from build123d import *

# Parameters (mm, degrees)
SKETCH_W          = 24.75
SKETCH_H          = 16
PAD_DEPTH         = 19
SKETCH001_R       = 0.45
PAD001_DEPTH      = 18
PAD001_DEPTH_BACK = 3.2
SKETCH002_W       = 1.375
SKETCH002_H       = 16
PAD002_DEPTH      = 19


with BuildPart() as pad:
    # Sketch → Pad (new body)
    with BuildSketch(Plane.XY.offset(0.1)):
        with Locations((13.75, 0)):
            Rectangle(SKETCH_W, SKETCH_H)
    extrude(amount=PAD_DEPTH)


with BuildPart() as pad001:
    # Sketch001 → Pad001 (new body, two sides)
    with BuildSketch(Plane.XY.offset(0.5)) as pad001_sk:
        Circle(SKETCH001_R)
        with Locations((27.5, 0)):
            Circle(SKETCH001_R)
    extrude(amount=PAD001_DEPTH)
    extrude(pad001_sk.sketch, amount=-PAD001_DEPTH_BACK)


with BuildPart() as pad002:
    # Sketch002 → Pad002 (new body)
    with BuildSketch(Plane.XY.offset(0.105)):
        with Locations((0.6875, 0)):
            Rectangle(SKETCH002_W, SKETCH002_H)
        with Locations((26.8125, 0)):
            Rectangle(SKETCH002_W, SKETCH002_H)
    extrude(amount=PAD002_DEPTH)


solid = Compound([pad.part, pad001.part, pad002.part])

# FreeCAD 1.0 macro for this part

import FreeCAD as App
import Part
import Sketcher

V = App.Vector

doc = App.newDocument("Part")
body = doc.addObject("PartDesign::Body", "Body")

# Sketch on XY plane
sketch1 = body.newObject("Sketcher::SketchObject", "Sketch")
sketch1.AttachmentSupport = (doc.getObject("XY_Plane"), [""])
sketch1.MapMode = "FlatFace"
sketch1.AttachmentOffset = App.Placement(V(0, 0, 0.1), App.Rotation())
sketch1.addGeometry(Part.LineSegment(V(1, 8, 0), V(1, -8, 0)), False)
sketch1.addGeometry(Part.LineSegment(V(1, -8, 0), V(26, -8, 0)), False)
sketch1.addGeometry(Part.LineSegment(V(26, -8, 0), V(26, 8, 0)), False)
sketch1.addGeometry(Part.LineSegment(V(26, 8, 0), V(1, 8, 0)), False)
sketch1.addConstraint(Sketcher.Constraint("Coincident", 0, 2, 1, 1))
sketch1.addConstraint(Sketcher.Constraint("Coincident", 1, 2, 2, 1))
sketch1.addConstraint(Sketcher.Constraint("Coincident", 2, 2, 3, 1))
sketch1.addConstraint(Sketcher.Constraint("Coincident", 3, 2, 0, 1))
sketch1.addConstraint(Sketcher.Constraint("Vertical", 0))
sketch1.addConstraint(Sketcher.Constraint("Horizontal", 1))
sketch1.addConstraint(Sketcher.Constraint("Vertical", 2))
sketch1.addConstraint(Sketcher.Constraint("Horizontal", 3))
sketch1.addConstraint(Sketcher.Constraint("DistanceY", 0, 2, 0, 1, 16.0))
sketch1.addConstraint(Sketcher.Constraint("DistanceY", 0, 2, -1, 1, 8.0))
sketch1.addConstraint(Sketcher.Constraint("DistanceX", 1, 1, 1, 2, 24.75))
sketch1.addConstraint(Sketcher.Constraint("DistanceX", -1, 1, 0, 2, 1.375))
pad1 = body.newObject("PartDesign::Pad", "Pad")
pad1.Profile = sketch1
pad1.Length = 19
body2 = doc.addObject("PartDesign::Body", "Body001")
body2.AllowCompound = True

# Sketch on XY plane
sketch2 = body2.newObject("Sketcher::SketchObject", "Sketch001")
sketch2.AttachmentSupport = (doc.getObject("XY_Plane001"), [""])
sketch2.MapMode = "FlatFace"
sketch2.AttachmentOffset = App.Placement(V(0, 0, 0.5), App.Rotation())
sketch2.addGeometry(Part.Circle(V(0, 0, 0), V(0, 0, 1), 0.45), False)
sketch2.addGeometry(Part.Circle(V(27.5, 0, 0), V(0, 0, 1), 0.45), False)
sketch2.addConstraint(Sketcher.Constraint("Coincident", 0, 3, -1, 1))
sketch2.addConstraint(Sketcher.Constraint("Equal", 0, 1))
sketch2.addConstraint(Sketcher.Constraint("PointOnObject", 1, 3, -1))
sketch2.addConstraint(Sketcher.Constraint("Diameter", 0, 0.9))
sketch2.addConstraint(Sketcher.Constraint("DistanceX", -1, 1, 1, 3, 27.5))
pad2 = body2.newObject("PartDesign::Pad", "Pad001")
pad2.Profile = sketch2
pad2.Type = "TwoLengths"
pad2.Length = 18
pad2.Length2 = 3.2
body3 = doc.addObject("PartDesign::Body", "Body002")
body3.AllowCompound = True

# Sketch on XY plane
sketch3 = body3.newObject("Sketcher::SketchObject", "Sketch002")
sketch3.AttachmentSupport = (doc.getObject("XY_Plane002"), [""])
sketch3.MapMode = "FlatFace"
sketch3.AttachmentOffset = App.Placement(V(0, 0, 0.105), App.Rotation())
sketch3.addGeometry(Part.LineSegment(V(0, 8, 0), V(0, -8, 0)), False)
sketch3.addGeometry(Part.LineSegment(V(0, -8, 0), V(1.4, -8, 0)), False)
sketch3.addGeometry(Part.LineSegment(V(1.4, -8, 0), V(1.4, 8, 0)), False)
sketch3.addGeometry(Part.LineSegment(V(1.4, 8, 0), V(0, 8, 0)), False)
sketch3.addGeometry(Part.LineSegment(V(26.1, 8, 0), V(26.1, -8, 0)), False)
sketch3.addGeometry(Part.LineSegment(V(26.1, -8, 0), V(27.5, -8, 0)), False)
sketch3.addGeometry(Part.LineSegment(V(27.5, -8, 0), V(27.5, 8, 0)), False)
sketch3.addGeometry(Part.LineSegment(V(27.5, 8, 0), V(26.1, 8, 0)), False)
sketch3.addConstraint(Sketcher.Constraint("Coincident", 0, 2, 1, 1))
sketch3.addConstraint(Sketcher.Constraint("Coincident", 1, 2, 2, 1))
sketch3.addConstraint(Sketcher.Constraint("Coincident", 2, 2, 3, 1))
sketch3.addConstraint(Sketcher.Constraint("Coincident", 3, 2, 0, 1))
sketch3.addConstraint(Sketcher.Constraint("Coincident", 4, 2, 5, 1))
sketch3.addConstraint(Sketcher.Constraint("Coincident", 5, 2, 6, 1))
sketch3.addConstraint(Sketcher.Constraint("Coincident", 6, 2, 7, 1))
sketch3.addConstraint(Sketcher.Constraint("Coincident", 7, 2, 4, 1))
sketch3.addConstraint(Sketcher.Constraint("Vertical", 0))
sketch3.addConstraint(Sketcher.Constraint("Horizontal", 1))
sketch3.addConstraint(Sketcher.Constraint("Vertical", 2))
sketch3.addConstraint(Sketcher.Constraint("Horizontal", 3))
sketch3.addConstraint(Sketcher.Constraint("Vertical", 4))
sketch3.addConstraint(Sketcher.Constraint("Horizontal", 5))
sketch3.addConstraint(Sketcher.Constraint("Vertical", 6))
sketch3.addConstraint(Sketcher.Constraint("Horizontal", 7))
sketch3.addConstraint(Sketcher.Constraint("Symmetric", 0, 2, 3, 2, -1, 1))
sketch3.addConstraint(Sketcher.Constraint("Horizontal", 1, 2, 4, 2))
sketch3.addConstraint(Sketcher.Constraint("Horizontal", 3, 2, 6, 2))
sketch3.addConstraint(Sketcher.Constraint("Equal", 3, 5))
sketch3.addConstraint(Sketcher.Constraint("DistanceY", 0, 2, 0, 1, 16.0))
sketch3.addConstraint(Sketcher.Constraint("DistanceX", -1, 1, 5, 2, 27.5))
sketch3.addConstraint(Sketcher.Constraint("DistanceX", 1, 1, 1, 2, 1.375))
pad3 = body3.newObject("PartDesign::Pad", "Pad002")
pad3.Profile = sketch3
pad3.Length = 19

doc.recompute()
